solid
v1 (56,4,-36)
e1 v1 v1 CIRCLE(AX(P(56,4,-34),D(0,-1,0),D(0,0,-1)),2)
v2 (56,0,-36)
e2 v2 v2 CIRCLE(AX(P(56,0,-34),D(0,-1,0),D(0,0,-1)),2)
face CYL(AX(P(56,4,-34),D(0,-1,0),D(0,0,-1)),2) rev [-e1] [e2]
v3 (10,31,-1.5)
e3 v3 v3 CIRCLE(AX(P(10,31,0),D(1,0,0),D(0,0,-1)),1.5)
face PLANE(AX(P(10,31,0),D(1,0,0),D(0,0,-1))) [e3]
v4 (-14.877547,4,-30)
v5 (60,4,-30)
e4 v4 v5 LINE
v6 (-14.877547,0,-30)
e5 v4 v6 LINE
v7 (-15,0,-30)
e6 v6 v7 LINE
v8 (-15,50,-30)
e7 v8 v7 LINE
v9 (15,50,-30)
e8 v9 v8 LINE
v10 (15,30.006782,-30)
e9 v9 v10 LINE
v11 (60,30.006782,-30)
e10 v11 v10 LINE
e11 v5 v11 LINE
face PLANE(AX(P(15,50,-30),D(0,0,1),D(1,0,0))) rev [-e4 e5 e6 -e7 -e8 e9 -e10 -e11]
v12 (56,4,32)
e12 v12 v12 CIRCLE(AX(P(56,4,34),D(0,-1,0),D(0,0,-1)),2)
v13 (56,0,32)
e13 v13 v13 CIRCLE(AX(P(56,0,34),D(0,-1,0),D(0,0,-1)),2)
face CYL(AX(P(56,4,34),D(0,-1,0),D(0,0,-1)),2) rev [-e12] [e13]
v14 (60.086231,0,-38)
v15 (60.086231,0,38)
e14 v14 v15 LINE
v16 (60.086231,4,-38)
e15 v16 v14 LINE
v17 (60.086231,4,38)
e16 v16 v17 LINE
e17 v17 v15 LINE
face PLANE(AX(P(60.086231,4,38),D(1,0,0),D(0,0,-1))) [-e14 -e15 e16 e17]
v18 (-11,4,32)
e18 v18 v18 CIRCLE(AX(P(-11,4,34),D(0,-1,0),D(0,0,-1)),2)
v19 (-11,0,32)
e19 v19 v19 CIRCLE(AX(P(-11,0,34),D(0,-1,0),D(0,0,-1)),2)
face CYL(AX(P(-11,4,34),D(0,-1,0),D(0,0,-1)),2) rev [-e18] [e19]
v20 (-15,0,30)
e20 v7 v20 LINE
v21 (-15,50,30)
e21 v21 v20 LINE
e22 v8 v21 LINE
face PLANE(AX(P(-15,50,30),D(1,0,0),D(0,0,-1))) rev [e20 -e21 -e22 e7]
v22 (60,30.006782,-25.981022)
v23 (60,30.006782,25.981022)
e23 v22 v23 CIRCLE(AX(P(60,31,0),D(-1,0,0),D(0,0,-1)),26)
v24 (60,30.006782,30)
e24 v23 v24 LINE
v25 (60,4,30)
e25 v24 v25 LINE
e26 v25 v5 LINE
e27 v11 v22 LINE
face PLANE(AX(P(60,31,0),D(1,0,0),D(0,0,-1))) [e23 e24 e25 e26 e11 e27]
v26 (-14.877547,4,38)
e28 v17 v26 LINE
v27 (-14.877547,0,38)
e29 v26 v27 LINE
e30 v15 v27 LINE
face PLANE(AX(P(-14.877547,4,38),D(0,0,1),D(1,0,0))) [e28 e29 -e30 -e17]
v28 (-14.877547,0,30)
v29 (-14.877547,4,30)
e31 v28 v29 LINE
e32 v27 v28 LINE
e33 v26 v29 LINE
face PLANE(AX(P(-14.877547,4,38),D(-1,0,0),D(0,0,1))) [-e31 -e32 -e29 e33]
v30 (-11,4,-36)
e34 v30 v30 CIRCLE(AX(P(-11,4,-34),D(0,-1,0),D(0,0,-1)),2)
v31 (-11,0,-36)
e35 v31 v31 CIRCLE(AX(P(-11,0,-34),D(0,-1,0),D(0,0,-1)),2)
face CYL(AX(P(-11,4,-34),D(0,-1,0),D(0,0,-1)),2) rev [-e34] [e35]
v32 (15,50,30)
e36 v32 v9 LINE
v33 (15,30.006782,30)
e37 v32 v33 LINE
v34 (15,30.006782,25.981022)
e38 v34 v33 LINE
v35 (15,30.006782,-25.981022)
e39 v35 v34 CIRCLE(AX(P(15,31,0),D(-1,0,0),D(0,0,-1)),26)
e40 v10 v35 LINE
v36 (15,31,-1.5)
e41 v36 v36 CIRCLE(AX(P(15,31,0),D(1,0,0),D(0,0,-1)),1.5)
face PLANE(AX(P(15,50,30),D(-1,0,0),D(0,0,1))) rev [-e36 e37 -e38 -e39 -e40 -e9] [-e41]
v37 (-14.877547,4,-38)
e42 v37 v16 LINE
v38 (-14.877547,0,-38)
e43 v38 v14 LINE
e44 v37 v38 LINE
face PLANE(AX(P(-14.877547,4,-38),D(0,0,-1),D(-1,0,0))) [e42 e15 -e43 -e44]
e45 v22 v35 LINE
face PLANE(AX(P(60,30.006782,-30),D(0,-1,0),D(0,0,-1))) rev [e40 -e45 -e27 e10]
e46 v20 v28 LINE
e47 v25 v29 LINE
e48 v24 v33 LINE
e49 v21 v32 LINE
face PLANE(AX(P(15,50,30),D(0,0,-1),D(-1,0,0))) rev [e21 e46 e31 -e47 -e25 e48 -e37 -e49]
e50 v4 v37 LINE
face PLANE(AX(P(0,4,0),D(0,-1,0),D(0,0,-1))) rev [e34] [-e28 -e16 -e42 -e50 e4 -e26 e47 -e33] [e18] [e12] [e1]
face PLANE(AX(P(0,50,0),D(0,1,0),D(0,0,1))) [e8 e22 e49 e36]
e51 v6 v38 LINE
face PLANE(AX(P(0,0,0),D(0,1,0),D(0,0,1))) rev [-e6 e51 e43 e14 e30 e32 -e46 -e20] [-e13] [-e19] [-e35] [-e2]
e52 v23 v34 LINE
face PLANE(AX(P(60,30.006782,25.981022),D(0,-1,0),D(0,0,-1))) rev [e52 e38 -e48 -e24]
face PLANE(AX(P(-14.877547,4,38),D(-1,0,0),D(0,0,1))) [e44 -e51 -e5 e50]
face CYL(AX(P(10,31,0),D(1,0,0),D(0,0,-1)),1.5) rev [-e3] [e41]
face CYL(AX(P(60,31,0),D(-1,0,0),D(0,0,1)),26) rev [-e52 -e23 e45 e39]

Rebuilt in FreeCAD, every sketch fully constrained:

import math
import FreeCAD as App
import Part
import Sketcher
from FreeCAD import Vector


def add_polygon(sketch, points):
    """Adds a closed chain of lines whose ends are joined by coincident constraints."""
    first, n = sketch.GeometryCount, len(points)
    for a, b in zip(points, points[1:] + points[:1]):
        sketch.addGeometry(Part.LineSegment(App.Vector(*a, 0), App.Vector(*b, 0)), False)
    for i in range(n):
        sketch.addConstraint(Sketcher.Constraint("Coincident", first + i, 2, first + (i + 1) % n, 1))

doc = App.newDocument("Part")
params = doc.addObject("Spreadsheet::Sheet", "Params")
for row, (alias, value) in enumerate([
    ("sketch1_width", "30 mm"),
    ("sketch1_height", "60 mm"),
    ("pad1_length", "50 mm"),
    ("sketch2_radius", "26 mm"),
    ("sketch2_height", "60 mm"),
    ("pad2_length", "45 mm"),
    ("sketch3_diameter", "4 mm"),
    ("sketch3_height", "76 mm"),
    ("pad3_length", "4 mm"),
    ("sketch4_diameter", "3 mm"),
    ("pocket1_length", "5 mm"),
], start=1):
    params.set(f"A{row}", alias)
    params.set(f"B{row}", "=" + value)
    params.setAlias(f"B{row}", alias)

body = doc.addObject("PartDesign::Body", "Body")

# Sketch on XZ plane
sketch1 = doc.addObject("Sketcher::SketchObject", "Sketch")
body.addObject(sketch1)
sketch1.AttachmentSupport = (doc.XZ_Plane, [""])
sketch1.MapMode = "FlatFace"
add_polygon(sketch1, [(-15, -30), (-15, 30), (15, 30), (15, -30)])  # lines 0-3
sketch1.addConstraint(Sketcher.Constraint("Vertical", 0))
sketch1.addConstraint(Sketcher.Constraint("Horizontal", 1))
sketch1.addConstraint(Sketcher.Constraint("Vertical", 2))
sketch1.addConstraint(Sketcher.Constraint("Horizontal", 3))
sketch1.addConstraint(Sketcher.Constraint("Symmetric", 0, 2, 2, 2, -1, 1))
sketch1.addConstraint(Sketcher.Constraint("DistanceX", 1, 1, 1, 2, 30.0))
sketch1.addConstraint(Sketcher.Constraint("DistanceY", 0, 1, 0, 2, 60.0))
sketch1.setExpression("Constraints[9]", "Params.sketch1_width")
sketch1.setExpression("Constraints[10]", "Params.sketch1_height")
pad1 = doc.addObject("PartDesign::Pad", "Pad")
body.addObject(pad1)
pad1.Profile = sketch1
pad1.setExpression("Length", "Params.pad1_length")
pad1.Reversed = True

# Sketch on YZ plane
sketch2 = doc.addObject("Sketcher::SketchObject", "Sketch001")
body.addObject(sketch2)
sketch2.AttachmentSupport = (doc.YZ_Plane, [""])
sketch2.MapMode = "FlatFace"
sketch2.AttachmentOffset = App.Placement(Vector(0, 0, 15), App.Rotation())
sketch2.addGeometry(Part.LineSegment(Vector(30, 26, 0), Vector(30, 30, 0)), False)
sketch2.addGeometry(Part.LineSegment(Vector(30, 30, 0), Vector(0, 30, 0)), False)
sketch2.addGeometry(Part.LineSegment(Vector(0, 30, 0), Vector(0, -30, 0)), False)
sketch2.addGeometry(Part.LineSegment(Vector(0, -30, 0), Vector(30, -30, 0)), False)
sketch2.addGeometry(Part.LineSegment(Vector(30, -30, 0), Vector(30, -26, 0)), False)
sketch2.addGeometry(Part.ArcOfCircle(Part.Circle(Vector(31, 0, 0), Vector(0, 0, 1), 26), math.radians(92), math.radians(268)), False)
sketch2.addConstraint(Sketcher.Constraint("Coincident", 0, 2, 1, 1))
sketch2.addConstraint(Sketcher.Constraint("Coincident", 1, 2, 2, 1))
sketch2.addConstraint(Sketcher.Constraint("Coincident", 2, 2, 3, 1))
sketch2.addConstraint(Sketcher.Constraint("Coincident", 3, 2, 4, 1))
sketch2.addConstraint(Sketcher.Constraint("Coincident", 4, 2, 5, 2))
sketch2.addConstraint(Sketcher.Constraint("Coincident", 5, 1, 0, 1))
sketch2.addConstraint(Sketcher.Constraint("Vertical", 0))
sketch2.addConstraint(Sketcher.Constraint("Horizontal", 1))
sketch2.addConstraint(Sketcher.Constraint("Vertical", 2))
sketch2.addConstraint(Sketcher.Constraint("Horizontal", 3))
sketch2.addConstraint(Sketcher.Constraint("Vertical", 4))
sketch2.addConstraint(Sketcher.Constraint("Symmetric", 1, 2, 2, 2, -1, 1))
sketch2.addConstraint(Sketcher.Constraint("Symmetric", 4, 2, 5, 1, -1))
sketch2.addConstraint(Sketcher.Constraint("Radius", 5, 26.0))
sketch2.addConstraint(Sketcher.Constraint("DistanceY", 2, 2, 2, 1, 60.0))
sketch2.addConstraint(Sketcher.Constraint("DistanceX", -1, 1, 5, 3, 31.0))
sketch2.addConstraint(Sketcher.Constraint("DistanceX", 1, 2, 1, 1, 30.006782))
sketch2.setExpression("Constraints[13]", "Params.sketch2_radius")
sketch2.setExpression("Constraints[14]", "Params.sketch2_height")
pad2 = doc.addObject("PartDesign::Pad", "Pad001")
body.addObject(pad2)
pad2.Profile = sketch2
pad2.setExpression("Length", "Params.pad2_length")

# Sketch on XZ plane
sketch3 = doc.addObject("Sketcher::SketchObject", "Sketch002")
body.addObject(sketch3)
sketch3.AttachmentSupport = (doc.XZ_Plane, [""])
sketch3.MapMode = "FlatFace"
add_polygon(sketch3, [(-14.9, 38), (-14.9, -38), (60.1, -38), (60.1, 38)])  # lines 0-3
sketch3.addGeometry(Part.Circle(Vector(-11, -34, 0), Vector(0, 0, 1), 2), False)  # 4
sketch3.addGeometry(Part.Circle(Vector(56, -34, 0), Vector(0, 0, 1), 2), False)  # 5
sketch3.addGeometry(Part.Circle(Vector(-11, 34, 0), Vector(0, 0, 1), 2), False)  # 6
sketch3.addGeometry(Part.Circle(Vector(56, 34, 0), Vector(0, 0, 1), 2), False)  # 7
sketch3.addConstraint(Sketcher.Constraint("Vertical", 0))
sketch3.addConstraint(Sketcher.Constraint("Horizontal", 1))
sketch3.addConstraint(Sketcher.Constraint("Vertical", 2))
sketch3.addConstraint(Sketcher.Constraint("Horizontal", 3))
sketch3.addConstraint(Sketcher.Constraint("Equal", 4, 5))
sketch3.addConstraint(Sketcher.Constraint("Equal", 5, 6))
sketch3.addConstraint(Sketcher.Constraint("Equal", 6, 7))
sketch3.addConstraint(Sketcher.Constraint("Symmetric", 4, 3, 6, 3, -1))
sketch3.addConstraint(Sketcher.Constraint("Symmetric", 5, 3, 7, 3, -1))
sketch3.addConstraint(Sketcher.Constraint("Horizontal", 4, 3, 5, 3))
sketch3.addConstraint(Sketcher.Constraint("Diameter", 4, 4.0))
sketch3.addConstraint(Sketcher.Constraint("DistanceY", 0, 2, 0, 1, 76.0))
sketch3.addConstraint(Sketcher.Constraint("DistanceX", 4, 3, -1, 1, 11.0))
sketch3.addConstraint(Sketcher.Constraint("DistanceY", 4, 3, -1, 1, 34.0))
sketch3.addConstraint(Sketcher.Constraint("DistanceX", -1, 1, 5, 3, 56.0))
sketch3.addConstraint(Sketcher.Constraint("DistanceY", 0, 2, -1, 1, 38.0))
sketch3.addConstraint(Sketcher.Constraint("DistanceX", 1, 1, 1, 2, 74.963779))
sketch3.addConstraint(Sketcher.Constraint("DistanceX", -1, 1, 1, 2, 60.086231))
sketch3.setExpression("Constraints[14]", "Params.sketch3_diameter")
sketch3.setExpression("Constraints[15]", "Params.sketch3_height")
pad3 = doc.addObject("PartDesign::Pad", "Pad002")
body.addObject(pad3)
pad3.Profile = sketch3
pad3.setExpression("Length", "Params.pad3_length")
pad3.Reversed = True

# Sketch on YZ plane
sketch4 = doc.addObject("Sketcher::SketchObject", "Sketch003")
body.addObject(sketch4)
sketch4.AttachmentSupport = (doc.YZ_Plane, [""])
sketch4.MapMode = "FlatFace"
sketch4.AttachmentOffset = App.Placement(Vector(0, 0, 15), App.Rotation())
sketch4.addGeometry(Part.Circle(Vector(31, 0, 0), Vector(0, 0, 1), 1.5), False)
sketch4.addConstraint(Sketcher.Constraint("PointOnObject", 0, 3, -1))
sketch4.addConstraint(Sketcher.Constraint("Diameter", 0, 3.0))
sketch4.addConstraint(Sketcher.Constraint("DistanceX", -1, 1, 0, 3, 31.0))
sketch4.setExpression("Constraints[1]", "Params.sketch4_diameter")
pocket1 = doc.addObject("PartDesign::Pocket", "Pocket")
body.addObject(pocket1)
pocket1.Profile = sketch4
pocket1.setExpression("Length", "Params.pocket1_length")

doc.recompute()
